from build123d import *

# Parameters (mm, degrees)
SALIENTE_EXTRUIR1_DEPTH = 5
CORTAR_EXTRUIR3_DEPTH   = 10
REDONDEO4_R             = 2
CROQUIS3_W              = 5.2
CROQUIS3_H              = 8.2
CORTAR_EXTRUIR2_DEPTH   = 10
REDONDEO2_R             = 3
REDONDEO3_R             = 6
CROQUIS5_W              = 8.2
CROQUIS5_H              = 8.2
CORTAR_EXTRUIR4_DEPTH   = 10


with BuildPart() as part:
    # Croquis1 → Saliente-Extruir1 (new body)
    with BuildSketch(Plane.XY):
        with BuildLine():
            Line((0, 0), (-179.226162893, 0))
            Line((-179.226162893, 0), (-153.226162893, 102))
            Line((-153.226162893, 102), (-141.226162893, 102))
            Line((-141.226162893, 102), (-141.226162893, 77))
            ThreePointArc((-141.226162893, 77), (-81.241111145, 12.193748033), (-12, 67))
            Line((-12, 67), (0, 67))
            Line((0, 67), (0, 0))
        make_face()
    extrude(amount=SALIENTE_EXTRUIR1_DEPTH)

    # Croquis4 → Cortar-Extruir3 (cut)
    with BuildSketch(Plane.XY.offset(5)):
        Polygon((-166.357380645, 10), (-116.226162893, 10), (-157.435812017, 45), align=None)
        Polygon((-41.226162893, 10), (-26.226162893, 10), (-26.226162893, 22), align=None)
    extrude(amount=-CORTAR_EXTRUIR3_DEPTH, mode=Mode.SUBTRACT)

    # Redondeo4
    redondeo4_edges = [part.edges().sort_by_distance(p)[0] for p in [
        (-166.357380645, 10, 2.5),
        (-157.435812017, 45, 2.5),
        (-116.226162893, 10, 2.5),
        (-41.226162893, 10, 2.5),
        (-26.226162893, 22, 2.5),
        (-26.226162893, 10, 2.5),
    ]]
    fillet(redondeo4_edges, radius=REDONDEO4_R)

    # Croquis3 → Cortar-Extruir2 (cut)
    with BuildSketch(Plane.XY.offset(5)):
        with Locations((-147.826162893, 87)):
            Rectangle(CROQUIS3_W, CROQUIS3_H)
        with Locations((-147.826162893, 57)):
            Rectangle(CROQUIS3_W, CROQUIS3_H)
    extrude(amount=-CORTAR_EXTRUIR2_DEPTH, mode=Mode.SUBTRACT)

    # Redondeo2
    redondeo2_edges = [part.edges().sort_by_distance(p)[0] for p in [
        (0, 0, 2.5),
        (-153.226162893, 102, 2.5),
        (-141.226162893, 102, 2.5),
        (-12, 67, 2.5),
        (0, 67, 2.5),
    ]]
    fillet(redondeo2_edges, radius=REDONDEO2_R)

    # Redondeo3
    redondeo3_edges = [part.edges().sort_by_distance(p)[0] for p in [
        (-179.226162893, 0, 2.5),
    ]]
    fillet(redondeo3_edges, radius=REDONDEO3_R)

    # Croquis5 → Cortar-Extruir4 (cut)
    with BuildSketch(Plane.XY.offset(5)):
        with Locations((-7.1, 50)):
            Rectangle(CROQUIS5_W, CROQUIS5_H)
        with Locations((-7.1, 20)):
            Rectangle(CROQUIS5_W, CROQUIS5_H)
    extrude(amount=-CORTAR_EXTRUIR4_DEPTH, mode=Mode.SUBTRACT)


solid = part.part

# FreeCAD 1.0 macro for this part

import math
import FreeCAD as App
import Part
import Sketcher


def edges_at(feature, points):
    """Names of the edges that pass closest to the given points."""
    edges = feature.Shape.Edges
    near = lambda p: min(range(len(edges)), key=lambda i: edges[i].distToShape(Part.Vertex(*p))[0])
    return sorted({f"Edge{near(p) + 1}" for p in points})

doc = App.newDocument("Part")
params = doc.addObject("Spreadsheet::Sheet", "Params")
for row, (alias, value) in enumerate([
    ("sketch1_radius", "65 mm"),
    ("sketch1_width", "12 mm"),
    ("sketch1_height", "67 mm"),
    ("sketch1_height2", "25 mm"),
    ("pad1_length", "5 mm"),
    ("sketch2_width", "15 mm"),
    ("sketch2_height", "12 mm"),
    ("pocket1_length", "10 mm"),
    ("fillet_radius", "2 mm"),
    ("sketch3_width", "5.2 mm"),
    ("sketch3_height", "8.2 mm"),
    ("pocket2_length", "10 mm"),
    ("fillet2_radius", "3 mm"),
    ("fillet3_radius", "6 mm"),
    ("sketch4_width", "8.2 mm"),
    ("pocket3_length", "10 mm"),
], start=1):
    params.set(f"A{row}", alias)
    params.set(f"B{row}", "=" + value)
    params.setAlias(f"B{row}", alias)

body = doc.addObject("PartDesign::Body", "Body")

# Sketch on XY plane
sketch1 = body.newObject("Sketcher::SketchObject", "Sketch")
sketch1.AttachmentSupport = (doc.getObject("XY_Plane"), [""])
sketch1.MapMode = "FlatFace"
sketch1.addGeometry([
    Part.LineSegment(App.Vector(-179.226163, 0, 0), App.Vector(0, 0, 0)),  # 0
    Part.LineSegment(App.Vector(0, 0, 0), App.Vector(0, 67, 0)),  # 1
    Part.LineSegment(App.Vector(0, 67, 0), App.Vector(-12, 67, 0)),  # 2
    Part.ArcOfCircle(Part.Circle(App.Vector(-76.226163, 77, 0), App.Vector(0, 0, 1), 65), math.radians(180), math.radians(351.150117)),  # 3
    Part.LineSegment(App.Vector(-141.226163, 77, 0), App.Vector(-141.226163, 102, 0)),  # 4
    Part.LineSegment(App.Vector(-141.226163, 102, 0), App.Vector(-153.226163, 102, 0)),  # 5
    Part.LineSegment(App.Vector(-153.226163, 102, 0), App.Vector(-179.226163, 0, 0)),  # 6
], False)
sketch1.addConstraint([
    Sketcher.Constraint("Coincident", 0, 2, 1, 1),
    Sketcher.Constraint("Coincident", 1, 2, 2, 1),
    Sketcher.Constraint("Coincident", 2, 2, 3, 2),
    Sketcher.Constraint("Tangent", 3, 1, 4, 1),
    Sketcher.Constraint("Coincident", 4, 2, 5, 1),
    Sketcher.Constraint("Coincident", 5, 2, 6, 1),
    Sketcher.Constraint("Coincident", 6, 2, 0, 1),
    Sketcher.Constraint("Horizontal", 0),
    Sketcher.Constraint("Vertical", 1),
    Sketcher.Constraint("Horizontal", 2),
    Sketcher.Constraint("Vertical", 4),
    Sketcher.Constraint("Horizontal", 5),
    Sketcher.Constraint("Coincident", 0, 2, -1, 1),
    Sketcher.Constraint("Equal", 2, 5),
    Sketcher.Constraint("Radius", 3, 65.0),
    Sketcher.Constraint("DistanceX", 2, 2, 2, 1, 12.0),
    Sketcher.Constraint("DistanceY", 1, 1, 1, 2, 67.0),
    Sketcher.Constraint("DistanceY", 4, 1, 4, 2, 25.0),
    Sketcher.Constraint("DistanceY", -1, 1, 3, 3, 77.0),
    Sketcher.Constraint("DistanceX", 6, 2, 3, 1, 38.0),
])
sketch1.setExpression("Constraints[14]", "Params.sketch1_radius")
sketch1.setExpression("Constraints[15]", "Params.sketch1_width")
sketch1.setExpression("Constraints[16]", "Params.sketch1_height")
sketch1.setExpression("Constraints[17]", "Params.sketch1_height2")
pad1 = body.newObject("PartDesign::Pad", "Pad")
pad1.Profile = sketch1
pad1.setExpression("Length", "Params.pad1_length")

# Sketch on XY plane
sketch2 = body.newObject("Sketcher::SketchObject", "Sketch001")
sketch2.AttachmentSupport = (doc.getObject("XY_Plane"), [""])
sketch2.MapMode = "FlatFace"
sketch2.AttachmentOffset = App.Placement(App.Vector(0, 0, 5), App.Rotation())
sketch2.addGeometry([
    Part.LineSegment(App.Vector(-166.357381, 10, 0), App.Vector(-116.226163, 10, 0)),  # 0
    Part.LineSegment(App.Vector(-116.226163, 10, 0), App.Vector(-157.435812, 45, 0)),  # 1
    Part.LineSegment(App.Vector(-157.435812, 45, 0), App.Vector(-166.357381, 10, 0)),  # 2
    Part.LineSegment(App.Vector(-41.226163, 10, 0), App.Vector(-26.226163, 10, 0)),  # 3
    Part.LineSegment(App.Vector(-26.226163, 10, 0), App.Vector(-26.226163, 22, 0)),  # 4
    Part.LineSegment(App.Vector(-26.226163, 22, 0), App.Vector(-41.226163, 10, 0)),  # 5
], False)
sketch2.addConstraint([
    Sketcher.Constraint("Coincident", 0, 2, 1, 1),
    Sketcher.Constraint("Coincident", 1, 2, 2, 1),
    Sketcher.Constraint("Coincident", 2, 2, 0, 1),
    Sketcher.Constraint("Coincident", 3, 2, 4, 1),
    Sketcher.Constraint("Coincident", 4, 2, 5, 1),
    Sketcher.Constraint("Coincident", 5, 2, 3, 1),
    Sketcher.Constraint("Horizontal", 0),
    Sketcher.Constraint("Horizontal", 3),
    Sketcher.Constraint("Vertical", 4),
    Sketcher.Constraint("Horizontal", 2, 2, 3, 2),
    Sketcher.Constraint("DistanceX", 3, 1, 3, 2, 15.0),
    Sketcher.Constraint("DistanceY", 4, 1, 4, 2, 12.0),
    Sketcher.Constraint("DistanceY", -1, 1, 0, 2, 10.0),
    Sketcher.Constraint("DistanceY", -1, 1, 1, 2, 45.0),
    Sketcher.Constraint("DistanceX", 0, 2, 3, 2, 90.0),
    Sketcher.Constraint("Distance", 1, 54.066951),
    Sketcher.Constraint("Distance", 2, 36.119169),
    Sketcher.Constraint("DistanceX", 2, 2, -1, 1, 166.357381),
])
sketch2.setExpression("Constraints[10]", "Params.sketch2_width")
sketch2.setExpression("Constraints[11]", "Params.sketch2_height")
pocket1 = body.newObject("PartDesign::Pocket", "Pocket")
pocket1.Profile = sketch2
pocket1.setExpression("Length", "Params.pocket1_length")
doc.recompute()

fillet = body.newObject("PartDesign::Fillet", "Fillet")
fillet.Base = (pocket1, edges_at(pocket1, [
    (-166.357, 10, 2.5),
    (-157.436, 45, 2.5),
    (-116.226, 10, 2.5),
    (-41.226, 10, 2.5),
    (-26.226, 22, 2.5),
    (-26.226, 10, 2.5),
]))
fillet.setExpression("Radius", "Params.fillet_radius")

# Sketch on XY plane
sketch3 = body.newObject("Sketcher::SketchObject", "Sketch002")
sketch3.AttachmentSupport = (doc.getObject("XY_Plane"), [""])
sketch3.MapMode = "FlatFace"
sketch3.AttachmentOffset = App.Placement(App.Vector(0, 0, 5), App.Rotation())
sketch3.addGeometry([
    Part.LineSegment(App.Vector(-150.426163, 91.1, 0), App.Vector(-150.426163, 82.9, 0)),  # 0
    Part.LineSegment(App.Vector(-150.426163, 82.9, 0), App.Vector(-145.226163, 82.9, 0)),  # 1
    Part.LineSegment(App.Vector(-145.226163, 82.9, 0), App.Vector(-145.226163, 91.1, 0)),  # 2
    Part.LineSegment(App.Vector(-145.226163, 91.1, 0), App.Vector(-150.426163, 91.1, 0)),  # 3
    Part.LineSegment(App.Vector(-150.426163, 61.1, 0), App.Vector(-150.426163, 52.9, 0)),  # 4
    Part.LineSegment(App.Vector(-150.426163, 52.9, 0), App.Vector(-145.226163, 52.9, 0)),  # 5
    Part.LineSegment(App.Vector(-145.226163, 52.9, 0), App.Vector(-145.226163, 61.1, 0)),  # 6
    Part.LineSegment(App.Vector(-145.226163, 61.1, 0), App.Vector(-150.426163, 61.1, 0)),  # 7
], False)
sketch3.addConstraint([
    Sketcher.Constraint("Coincident", 0, 2, 1, 1),
    Sketcher.Constraint("Coincident", 1, 2, 2, 1),
    Sketcher.Constraint("Coincident", 2, 2, 3, 1),
    Sketcher.Constraint("Coincident", 3, 2, 0, 1),
    Sketcher.Constraint("Coincident", 4, 2, 5, 1),
    Sketcher.Constraint("Coincident", 5, 2, 6, 1),
    Sketcher.Constraint("Coincident", 6, 2, 7, 1),
    Sketcher.Constraint("Coincident", 7, 2, 4, 1),
    Sketcher.Constraint("Vertical", 0),
    Sketcher.Constraint("Horizontal", 1),
    Sketcher.Constraint("Vertical", 2),
    Sketcher.Constraint("Horizontal", 3),
    Sketcher.Constraint("Vertical", 4),
    Sketcher.Constraint("Horizontal", 5),
    Sketcher.Constraint("Vertical", 6),
    Sketcher.Constraint("Horizontal", 7),
    Sketcher.Constraint("Vertical", 3, 2, 4, 2),
    Sketcher.Constraint("Vertical", 2, 2, 5, 2),
    Sketcher.Constraint("Equal", 2, 4),
    Sketcher.Constraint("DistanceX", 1, 1, 1, 2, 5.2),
    Sketcher.Constraint("DistanceY", 0, 2, 0, 1, 8.2),
    Sketcher.Constraint("DistanceY", 4, 2, 0, 2, 30.0),
    Sketcher.Constraint("DistanceY", -1, 1, 0, 2, 82.9),
    Sketcher.Constraint("DistanceX", 0, 2, -1, 1, 150.426163),
])
sketch3.setExpression("Constraints[19]", "Params.sketch3_width")
sketch3.setExpression("Constraints[20]", "Params.sketch3_height")
pocket2 = body.newObject("PartDesign::Pocket", "Pocket001")
pocket2.Profile = sketch3
pocket2.setExpression("Length", "Params.pocket2_length")
doc.recompute()

fillet2 = body.newObject("PartDesign::Fillet", "Fillet001")
fillet2.Base = (pocket2, edges_at(pocket2, [
    (0, 0, 2.5),
    (-153.226, 102, 2.5),
    (-141.226, 102, 2.5),
    (-12, 67, 2.5),
    (0, 67, 2.5),
]))
fillet2.setExpression("Radius", "Params.fillet2_radius")
doc.recompute()

fillet3 = body.newObject("PartDesign::Fillet", "Fillet002")
fillet3.Base = (fillet2, edges_at(fillet2, [(-179.226, 0, 2.5)]))
fillet3.setExpression("Radius", "Params.fillet3_radius")

# Sketch on XY plane
sketch4 = body.newObject("Sketcher::SketchObject", "Sketch003")
sketch4.AttachmentSupport = (doc.getObject("XY_Plane"), [""])
sketch4.MapMode = "FlatFace"
sketch4.AttachmentOffset = App.Placement(App.Vector(0, 0, 5), App.Rotation())
sketch4.addGeometry([
    Part.LineSegment(App.Vector(-11.2, 54.1, 0), App.Vector(-11.2, 45.9, 0)),  # 0
    Part.LineSegment(App.Vector(-11.2, 45.9, 0), App.Vector(-3, 45.9, 0)),  # 1
    Part.LineSegment(App.Vector(-3, 45.9, 0), App.Vector(-3, 54.1, 0)),  # 2
    Part.LineSegment(App.Vector(-3, 54.1, 0), App.Vector(-11.2, 54.1, 0)),  # 3
    Part.LineSegment(App.Vector(-11.2, 24.1, 0), App.Vector(-11.2, 15.9, 0)),  # 4
    Part.LineSegment(App.Vector(-11.2, 15.9, 0), App.Vector(-3, 15.9, 0)),  # 5
    Part.LineSegment(App.Vector(-3, 15.9, 0), App.Vector(-3, 24.1, 0)),  # 6
    Part.LineSegment(App.Vector(-3, 24.1, 0), App.Vector(-11.2, 24.1, 0)),  # 7
], False)
sketch4.addConstraint([
    Sketcher.Constraint("Coincident", 0, 2, 1, 1),
    Sketcher.Constraint("Coincident", 1, 2, 2, 1),
    Sketcher.Constraint("Coincident", 2, 2, 3, 1),
    Sketcher.Constraint("Coincident", 3, 2, 0, 1),
    Sketcher.Constraint("Coincident", 4, 2, 5, 1),
    Sketcher.Constraint("Coincident", 5, 2, 6, 1),
    Sketcher.Constraint("Coincident", 6, 2, 7, 1),
    Sketcher.Constraint("Coincident", 7, 2, 4, 1),
    Sketcher.Constraint("Vertical", 0),
    Sketcher.Constraint("Horizontal", 1),
    Sketcher.Constraint("Vertical", 2),
    Sketcher.Constraint("Horizontal", 3),
    Sketcher.Constraint("Vertical", 4),
    Sketcher.Constraint("Horizontal", 5),
    Sketcher.Constraint("Vertical", 6),
    Sketcher.Constraint("Horizontal", 7),
    Sketcher.Constraint("Vertical", 3, 2, 4, 2),
    Sketcher.Constraint("Vertical", 2, 2, 5, 2),
    Sketcher.Constraint("Equal", 7, 0),
    Sketcher.Constraint("Equal", 2, 4),
    Sketcher.Constraint("DistanceX", 1, 1, 1, 2, 8.2),
    Sketcher.Constraint("DistanceX", 1, 2, -1, 1, 3.0),
    Sketcher.Constraint("DistanceY", 4, 2, 0, 2, 30.0),
    Sketcher.Constraint("DistanceY", -1, 1, 0, 2, 45.9),
])
sketch4.setExpression("Constraints[20]", "Params.sketch4_width")
pocket3 = body.newObject("PartDesign::Pocket", "Pocket002")
pocket3.Profile = sketch4
pocket3.setExpression("Length", "Params.pocket3_length")

doc.recompute()
